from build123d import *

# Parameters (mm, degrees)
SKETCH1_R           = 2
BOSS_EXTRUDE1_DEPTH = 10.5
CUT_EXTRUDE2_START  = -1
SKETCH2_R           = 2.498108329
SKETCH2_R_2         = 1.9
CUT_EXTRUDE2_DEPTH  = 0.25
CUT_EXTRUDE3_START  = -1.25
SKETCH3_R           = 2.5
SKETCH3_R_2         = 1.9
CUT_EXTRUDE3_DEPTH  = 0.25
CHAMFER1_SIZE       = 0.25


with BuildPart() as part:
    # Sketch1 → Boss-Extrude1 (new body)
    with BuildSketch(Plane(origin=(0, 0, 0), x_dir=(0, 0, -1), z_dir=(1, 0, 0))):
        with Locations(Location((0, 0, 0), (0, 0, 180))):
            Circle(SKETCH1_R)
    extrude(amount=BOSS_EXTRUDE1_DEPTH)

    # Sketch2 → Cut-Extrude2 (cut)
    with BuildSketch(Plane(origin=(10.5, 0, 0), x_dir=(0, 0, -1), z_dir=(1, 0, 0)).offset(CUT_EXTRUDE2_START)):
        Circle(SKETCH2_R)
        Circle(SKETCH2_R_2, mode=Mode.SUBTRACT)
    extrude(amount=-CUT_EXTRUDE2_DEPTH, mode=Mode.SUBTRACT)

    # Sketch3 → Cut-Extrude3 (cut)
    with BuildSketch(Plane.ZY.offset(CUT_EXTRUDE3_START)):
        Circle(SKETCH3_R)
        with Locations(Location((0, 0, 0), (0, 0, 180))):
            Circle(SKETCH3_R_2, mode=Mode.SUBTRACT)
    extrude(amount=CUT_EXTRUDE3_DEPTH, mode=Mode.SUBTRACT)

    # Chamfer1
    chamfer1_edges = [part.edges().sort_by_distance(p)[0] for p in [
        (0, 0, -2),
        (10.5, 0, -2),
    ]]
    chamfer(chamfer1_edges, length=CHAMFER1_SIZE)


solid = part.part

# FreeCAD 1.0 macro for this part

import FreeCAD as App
import Part
import Sketcher

V = App.Vector
Q = App.Units.Quantity


def edges_at(feature, points):
    """Names of the edges that pass closest to the given points."""
    edges = feature.Shape.Edges
    near = lambda p: min(range(len(edges)), key=lambda i: edges[i].distToShape(Part.Vertex(*p))[0])
    return sorted({f"Edge{near(p) + 1}" for p in points})

doc = App.newDocument("Part")
params = doc.addObject("Spreadsheet::Sheet", "Params")
for row, (alias, value) in enumerate([
    ("sketch1_diameter", "4 mm"),
    ("pad1_length", "10.5 mm"),
    ("sketch2_diameter", "3.8 mm"),
    ("pocket1_length", "0.25 mm"),
    ("sketch3_diameter", "5 mm"),
    ("sketch3_diameter2", "3.8 mm"),
    ("pocket2_length", "0.25 mm"),
    ("chamfer_size", "0.25 mm"),
], start=1):
    params.set(f"A{row}", alias)
    params.set(f"B{row}", "=" + value)
    params.setAlias(f"B{row}", alias)

body = doc.addObject("PartDesign::Body", "Body")

# Sketch on YZ plane
sketch1 = body.newObject("Sketcher::SketchObject", "Sketch")
sketch1.AttachmentSupport = (doc.getObject("YZ_Plane"), [""])
sketch1.MapMode = "FlatFace"
sketch1.addGeometry(Part.Circle(V(0, 0, 0), V(0, 0, 1), 2), False)
sketch1.addConstraint(Sketcher.Constraint("Coincident", 0, 3, -1, 1))
sketch1.addConstraint(Sketcher.Constraint("Diameter", 0, Q("4 mm")))
sketch1.setExpression("Constraints[1]", "Params.sketch1_diameter")
pad1 = body.newObject("PartDesign::Pad", "Pad")
pad1.Profile = sketch1
pad1.setExpression("Length", "Params.pad1_length")

# Sketch on YZ plane
sketch2 = body.newObject("Sketcher::SketchObject", "Sketch001")
sketch2.AttachmentSupport = (doc.getObject("YZ_Plane"), [""])
sketch2.MapMode = "FlatFace"
sketch2.AttachmentOffset = App.Placement(V(0, 0, 9.5), App.Rotation())
sketch2.addGeometry(Part.Circle(V(0, 0, 0), V(0, 0, 1), 2.5), False)
sketch2.addGeometry(Part.Circle(V(0, 0, 0), V(0, 0, 1), 1.9), False)
sketch2.addConstraint(Sketcher.Constraint("Coincident", 0, 3, -1, 1))
sketch2.addConstraint(Sketcher.Constraint("Coincident", 1, 3, -1, 1))
sketch2.addConstraint(Sketcher.Constraint("Diameter", 1, Q("3.8 mm")))
sketch2.addConstraint(Sketcher.Constraint("Diameter", 0, Q("4.996217 mm")))
sketch2.setExpression("Constraints[2]", "Params.sketch2_diameter")
pocket1 = body.newObject("PartDesign::Pocket", "Pocket")
pocket1.Profile = sketch2
pocket1.setExpression("Length", "Params.pocket1_length")

# Sketch on YZ plane
sketch3 = body.newObject("Sketcher::SketchObject", "Sketch002")
sketch3.AttachmentSupport = (doc.getObject("YZ_Plane"), [""])
sketch3.MapMode = "FlatFace"
sketch3.AttachmentOffset = App.Placement(V(0, 0, 1.25), App.Rotation())
sketch3.addGeometry(Part.Circle(V(0, 0, 0), V(0, 0, 1), 2.5), False)
sketch3.addGeometry(Part.Circle(V(0, 0, 0), V(0, 0, 1), 1.9), False)
sketch3.addConstraint(Sketcher.Constraint("Coincident", 0, 3, -1, 1))
sketch3.addConstraint(Sketcher.Constraint("Coincident", 1, 3, -1, 1))
sketch3.addConstraint(Sketcher.Constraint("Diameter", 0, Q("5 mm")))
sketch3.addConstraint(Sketcher.Constraint("Diameter", 1, Q("3.8 mm")))
sketch3.setExpression("Constraints[2]", "Params.sketch3_diameter")
sketch3.setExpression("Constraints[3]", "Params.sketch3_diameter2")
pocket2 = body.newObject("PartDesign::Pocket", "Pocket001")
pocket2.Profile = sketch3
pocket2.setExpression("Length", "Params.pocket2_length")
doc.recompute()

chamfer = body.newObject("PartDesign::Chamfer", "Chamfer")
chamfer.Base = (pocket2, edges_at(pocket2, [(0, 0, -2), (10.5, 0, -2)]))
chamfer.setExpression("Size", "Params.chamfer_size")

doc.recompute()
